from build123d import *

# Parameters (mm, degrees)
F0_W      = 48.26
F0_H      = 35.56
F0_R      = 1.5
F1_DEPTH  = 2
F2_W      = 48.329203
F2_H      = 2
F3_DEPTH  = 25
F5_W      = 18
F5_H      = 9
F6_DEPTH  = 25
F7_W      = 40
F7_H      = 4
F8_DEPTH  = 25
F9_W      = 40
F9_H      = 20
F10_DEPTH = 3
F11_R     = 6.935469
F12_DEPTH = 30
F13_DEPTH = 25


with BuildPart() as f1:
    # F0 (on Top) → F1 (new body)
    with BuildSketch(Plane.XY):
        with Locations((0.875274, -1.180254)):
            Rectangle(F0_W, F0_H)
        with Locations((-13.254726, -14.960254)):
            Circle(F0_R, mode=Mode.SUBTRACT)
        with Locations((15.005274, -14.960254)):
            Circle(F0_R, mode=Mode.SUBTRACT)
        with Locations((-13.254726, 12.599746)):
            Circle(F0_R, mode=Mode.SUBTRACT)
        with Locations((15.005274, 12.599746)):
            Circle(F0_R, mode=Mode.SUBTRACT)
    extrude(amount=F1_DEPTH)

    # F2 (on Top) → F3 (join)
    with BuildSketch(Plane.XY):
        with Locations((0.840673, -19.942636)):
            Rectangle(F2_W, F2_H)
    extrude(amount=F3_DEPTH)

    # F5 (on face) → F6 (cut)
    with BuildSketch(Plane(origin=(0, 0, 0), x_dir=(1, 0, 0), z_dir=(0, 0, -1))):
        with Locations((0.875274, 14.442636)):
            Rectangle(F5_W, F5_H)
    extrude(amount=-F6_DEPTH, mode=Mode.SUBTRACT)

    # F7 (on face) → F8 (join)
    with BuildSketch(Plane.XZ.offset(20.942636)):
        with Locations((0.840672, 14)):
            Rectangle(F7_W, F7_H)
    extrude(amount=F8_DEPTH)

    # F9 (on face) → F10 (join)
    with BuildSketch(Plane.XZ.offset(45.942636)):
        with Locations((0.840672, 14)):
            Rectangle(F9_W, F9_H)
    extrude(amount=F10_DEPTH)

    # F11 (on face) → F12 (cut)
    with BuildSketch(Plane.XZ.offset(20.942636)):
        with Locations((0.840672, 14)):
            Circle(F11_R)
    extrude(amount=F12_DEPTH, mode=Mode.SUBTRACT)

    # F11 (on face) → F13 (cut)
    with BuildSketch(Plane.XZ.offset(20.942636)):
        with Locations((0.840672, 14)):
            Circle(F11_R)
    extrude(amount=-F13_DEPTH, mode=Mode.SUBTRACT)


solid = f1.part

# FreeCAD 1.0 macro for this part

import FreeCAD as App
import Part
import Sketcher


def add_polygon(sketch, points):
    """Adds a closed chain of lines whose ends are joined by coincident constraints."""
    first, n = sketch.GeometryCount, len(points)
    for a, b in zip(points, points[1:] + points[:1]):
        sketch.addGeometry(Part.LineSegment(App.Vector(*a, 0), App.Vector(*b, 0)), False)
    for i in range(n):
        sketch.addConstraint(Sketcher.Constraint("Coincident", first + i, 2, first + (i + 1) % n, 1))

doc = App.newDocument("Part")
body = doc.addObject("PartDesign::Body", "Body")

# Sketch on XY plane
sketch1 = body.newObject("Sketcher::SketchObject", "Sketch")
sketch1.AttachmentSupport = (doc.getObject("XY_Plane"), [""])
sketch1.MapMode = "FlatFace"
add_polygon(sketch1, [(-23.3, 16.6), (-23.3, -19), (25, -19), (25, 16.6)])  # lines 0-3
sketch1.addGeometry(Part.Circle(App.Vector(-13.3, -15, 0), App.Vector(0, 0, 1), 1.5), False)  # 4
sketch1.addGeometry(Part.Circle(App.Vector(15, -15, 0), App.Vector(0, 0, 1), 1.5), False)  # 5
sketch1.addGeometry(Part.Circle(App.Vector(-13.3, 12.6, 0), App.Vector(0, 0, 1), 1.5), False)  # 6
sketch1.addGeometry(Part.Circle(App.Vector(15, 12.6, 0), App.Vector(0, 0, 1), 1.5), False)  # 7
sketch1.addConstraint([
    Sketcher.Constraint("Vertical", 0),
    Sketcher.Constraint("Horizontal", 1),
    Sketcher.Constraint("Vertical", 2),
    Sketcher.Constraint("Horizontal", 3),
    Sketcher.Constraint("Equal", 4, 5),
    Sketcher.Constraint("Equal", 5, 6),
    Sketcher.Constraint("Equal", 6, 7),
    Sketcher.Constraint("Horizontal", 4, 3, 5, 3),
    Sketcher.Constraint("Horizontal", 6, 3, 7, 3),
    Sketcher.Constraint("Vertical", 4, 3, 6, 3),
    Sketcher.Constraint("Vertical", 5, 3, 7, 3),
    Sketcher.Constraint("Diameter", 4, 3.0),
    Sketcher.Constraint("DistanceX", 0, 2, 4, 3, 10.0),
    Sketcher.Constraint("DistanceY", 0, 2, 4, 3, 4.0),
    Sketcher.Constraint("DistanceX", 5, 3, 1, 2, 10.0),
    Sketcher.Constraint("DistanceY", 7, 3, 2, 2, 4.0),
    Sketcher.Constraint("DistanceX", 1, 1, 1, 2, 48.26),
    Sketcher.Constraint("DistanceY", 0, 2, 0, 1, 35.56),
    Sketcher.Constraint("DistanceX", 4, 3, -1, 1, 13.254726),
    Sketcher.Constraint("DistanceY", 4, 3, -1, 1, 14.960254),
])
pad1 = body.newObject("PartDesign::Pad", "Pad")
pad1.Profile = sketch1
pad1.Length = 2

# Sketch on XY plane
sketch2 = body.newObject("Sketcher::SketchObject", "Sketch001")
sketch2.AttachmentSupport = (doc.getObject("XY_Plane"), [""])
sketch2.MapMode = "FlatFace"
add_polygon(sketch2, [(-23.3, -18.9), (-23.3, -20.9), (25, -20.9), (25, -18.9)])  # lines 0-3
sketch2.addConstraint([
    Sketcher.Constraint("Vertical", 0),
    Sketcher.Constraint("Horizontal", 1),
    Sketcher.Constraint("Vertical", 2),
    Sketcher.Constraint("Horizontal", 3),
    Sketcher.Constraint("DistanceY", 0, 2, 0, 1, 2.0),
    Sketcher.Constraint("DistanceX", 1, 1, 1, 2, 48.329203),
    Sketcher.Constraint("DistanceX", 0, 2, -1, 1, 23.323929),
    Sketcher.Constraint("DistanceY", 0, 2, -1, 1, 20.942636),
])
pad2 = body.newObject("PartDesign::Pad", "Pad001")
pad2.Profile = sketch2
pad2.Length = 25

# Sketch on XY plane
sketch3 = body.newObject("Sketcher::SketchObject", "Sketch002")
sketch3.AttachmentSupport = (doc.getObject("XY_Plane"), [""])
sketch3.MapMode = "FlatFace"
add_polygon(sketch3, [(-8, -19), (-8, -10), (10, -10), (10, -19)])  # lines 0-3
sketch3.addConstraint([
    Sketcher.Constraint("Vertical", 0),
    Sketcher.Constraint("Horizontal", 1),
    Sketcher.Constraint("Vertical", 2),
    Sketcher.Constraint("Horizontal", 3),
    Sketcher.Constraint("DistanceX", 1, 1, 1, 2, 18.0),
    Sketcher.Constraint("DistanceY", 0, 1, 0, 2, 9.0),
    Sketcher.Constraint("DistanceX", 0, 2, -1, 1, 8.124726),
    Sketcher.Constraint("DistanceY", 0, 2, -1, 1, 9.942636),
])
pocket1 = body.newObject("PartDesign::Pocket", "Pocket")
pocket1.Profile = sketch3
pocket1.Length = 25
pocket1.Reversed = True

# Sketch on XZ plane
sketch4 = body.newObject("Sketcher::SketchObject", "Sketch003")
sketch4.AttachmentSupport = (doc.getObject("XZ_Plane"), [""])
sketch4.MapMode = "FlatFace"
sketch4.AttachmentOffset = App.Placement(App.Vector(0, 0, 20.942636), App.Rotation())
add_polygon(sketch4, [(-19.2, 16), (-19.2, 12), (20.8, 12), (20.8, 16)])  # lines 0-3
sketch4.addConstraint([
    Sketcher.Constraint("Vertical", 0),
    Sketcher.Constraint("Horizontal", 1),
    Sketcher.Constraint("Vertical", 2),
    Sketcher.Constraint("Horizontal", 3),
    Sketcher.Constraint("DistanceX", 1, 1, 1, 2, 40.0),
    Sketcher.Constraint("DistanceY", 0, 2, 0, 1, 4.0),
    Sketcher.Constraint("DistanceY", -1, 1, 0, 2, 12.0),
    Sketcher.Constraint("DistanceX", 0, 2, -1, 1, 19.159328),
])
pad3 = body.newObject("PartDesign::Pad", "Pad002")
pad3.Profile = sketch4
pad3.Length = 25

# Sketch on XZ plane
sketch5 = body.newObject("Sketcher::SketchObject", "Sketch004")
sketch5.AttachmentSupport = (doc.getObject("XZ_Plane"), [""])
sketch5.MapMode = "FlatFace"
sketch5.AttachmentOffset = App.Placement(App.Vector(0, 0, 45.942636), App.Rotation())
add_polygon(sketch5, [(-19, 24), (-19, 4), (21, 4), (21, 24)])  # lines 0-3
sketch5.addConstraint([
    Sketcher.Constraint("Vertical", 0),
    Sketcher.Constraint("Horizontal", 1),
    Sketcher.Constraint("Vertical", 2),
    Sketcher.Constraint("Horizontal", 3),
    Sketcher.Constraint("DistanceX", 1, 1, 1, 2, 40.0),
    Sketcher.Constraint("DistanceY", 0, 2, 0, 1, 20.0),
    Sketcher.Constraint("DistanceY", -1, 1, 0, 2, 4.0),
    Sketcher.Constraint("DistanceX", 0, 2, -1, 1, 19.159328),
])
pad4 = body.newObject("PartDesign::Pad", "Pad003")
pad4.Profile = sketch5
pad4.Length = 3

# Sketch on XZ plane
sketch6 = body.newObject("Sketcher::SketchObject", "Sketch005")
sketch6.AttachmentSupport = (doc.getObject("XZ_Plane"), [""])
sketch6.MapMode = "FlatFace"
sketch6.AttachmentOffset = App.Placement(App.Vector(0, 0, 20.942636), App.Rotation())
sketch6.addGeometry(Part.Circle(App.Vector(1, 14, 0), App.Vector(0, 0, 1), 7), False)
sketch6.addConstraint([
    Sketcher.Constraint("DistanceY", -1, 1, 0, 3, 14.0),
    Sketcher.Constraint("Diameter", 0, 13.870938),
    Sketcher.Constraint("DistanceX", -1, 1, 0, 3, 0.840672),
])
pocket2 = body.newObject("PartDesign::Pocket", "Pocket001")
pocket2.Profile = sketch6
pocket2.Length = 30
pocket2.Reversed = True

# Sketch on XZ plane
sketch7 = body.newObject("Sketcher::SketchObject", "Sketch006")
sketch7.AttachmentSupport = (doc.getObject("XZ_Plane"), [""])
sketch7.MapMode = "FlatFace"
sketch7.AttachmentOffset = App.Placement(App.Vector(0, 0, 20.942636), App.Rotation())
sketch7.addGeometry(Part.Circle(App.Vector(1, 14, 0), App.Vector(0, 0, 1), 7), False)
sketch7.addConstraint([
    Sketcher.Constraint("DistanceY", -1, 1, 0, 3, 14.0),
    Sketcher.Constraint("Diameter", 0, 13.870938),
    Sketcher.Constraint("DistanceX", -1, 1, 0, 3, 0.840672),
])
pocket3 = body.newObject("PartDesign::Pocket", "Pocket002")
pocket3.Profile = sketch7
pocket3.Length = 25

doc.recompute()
